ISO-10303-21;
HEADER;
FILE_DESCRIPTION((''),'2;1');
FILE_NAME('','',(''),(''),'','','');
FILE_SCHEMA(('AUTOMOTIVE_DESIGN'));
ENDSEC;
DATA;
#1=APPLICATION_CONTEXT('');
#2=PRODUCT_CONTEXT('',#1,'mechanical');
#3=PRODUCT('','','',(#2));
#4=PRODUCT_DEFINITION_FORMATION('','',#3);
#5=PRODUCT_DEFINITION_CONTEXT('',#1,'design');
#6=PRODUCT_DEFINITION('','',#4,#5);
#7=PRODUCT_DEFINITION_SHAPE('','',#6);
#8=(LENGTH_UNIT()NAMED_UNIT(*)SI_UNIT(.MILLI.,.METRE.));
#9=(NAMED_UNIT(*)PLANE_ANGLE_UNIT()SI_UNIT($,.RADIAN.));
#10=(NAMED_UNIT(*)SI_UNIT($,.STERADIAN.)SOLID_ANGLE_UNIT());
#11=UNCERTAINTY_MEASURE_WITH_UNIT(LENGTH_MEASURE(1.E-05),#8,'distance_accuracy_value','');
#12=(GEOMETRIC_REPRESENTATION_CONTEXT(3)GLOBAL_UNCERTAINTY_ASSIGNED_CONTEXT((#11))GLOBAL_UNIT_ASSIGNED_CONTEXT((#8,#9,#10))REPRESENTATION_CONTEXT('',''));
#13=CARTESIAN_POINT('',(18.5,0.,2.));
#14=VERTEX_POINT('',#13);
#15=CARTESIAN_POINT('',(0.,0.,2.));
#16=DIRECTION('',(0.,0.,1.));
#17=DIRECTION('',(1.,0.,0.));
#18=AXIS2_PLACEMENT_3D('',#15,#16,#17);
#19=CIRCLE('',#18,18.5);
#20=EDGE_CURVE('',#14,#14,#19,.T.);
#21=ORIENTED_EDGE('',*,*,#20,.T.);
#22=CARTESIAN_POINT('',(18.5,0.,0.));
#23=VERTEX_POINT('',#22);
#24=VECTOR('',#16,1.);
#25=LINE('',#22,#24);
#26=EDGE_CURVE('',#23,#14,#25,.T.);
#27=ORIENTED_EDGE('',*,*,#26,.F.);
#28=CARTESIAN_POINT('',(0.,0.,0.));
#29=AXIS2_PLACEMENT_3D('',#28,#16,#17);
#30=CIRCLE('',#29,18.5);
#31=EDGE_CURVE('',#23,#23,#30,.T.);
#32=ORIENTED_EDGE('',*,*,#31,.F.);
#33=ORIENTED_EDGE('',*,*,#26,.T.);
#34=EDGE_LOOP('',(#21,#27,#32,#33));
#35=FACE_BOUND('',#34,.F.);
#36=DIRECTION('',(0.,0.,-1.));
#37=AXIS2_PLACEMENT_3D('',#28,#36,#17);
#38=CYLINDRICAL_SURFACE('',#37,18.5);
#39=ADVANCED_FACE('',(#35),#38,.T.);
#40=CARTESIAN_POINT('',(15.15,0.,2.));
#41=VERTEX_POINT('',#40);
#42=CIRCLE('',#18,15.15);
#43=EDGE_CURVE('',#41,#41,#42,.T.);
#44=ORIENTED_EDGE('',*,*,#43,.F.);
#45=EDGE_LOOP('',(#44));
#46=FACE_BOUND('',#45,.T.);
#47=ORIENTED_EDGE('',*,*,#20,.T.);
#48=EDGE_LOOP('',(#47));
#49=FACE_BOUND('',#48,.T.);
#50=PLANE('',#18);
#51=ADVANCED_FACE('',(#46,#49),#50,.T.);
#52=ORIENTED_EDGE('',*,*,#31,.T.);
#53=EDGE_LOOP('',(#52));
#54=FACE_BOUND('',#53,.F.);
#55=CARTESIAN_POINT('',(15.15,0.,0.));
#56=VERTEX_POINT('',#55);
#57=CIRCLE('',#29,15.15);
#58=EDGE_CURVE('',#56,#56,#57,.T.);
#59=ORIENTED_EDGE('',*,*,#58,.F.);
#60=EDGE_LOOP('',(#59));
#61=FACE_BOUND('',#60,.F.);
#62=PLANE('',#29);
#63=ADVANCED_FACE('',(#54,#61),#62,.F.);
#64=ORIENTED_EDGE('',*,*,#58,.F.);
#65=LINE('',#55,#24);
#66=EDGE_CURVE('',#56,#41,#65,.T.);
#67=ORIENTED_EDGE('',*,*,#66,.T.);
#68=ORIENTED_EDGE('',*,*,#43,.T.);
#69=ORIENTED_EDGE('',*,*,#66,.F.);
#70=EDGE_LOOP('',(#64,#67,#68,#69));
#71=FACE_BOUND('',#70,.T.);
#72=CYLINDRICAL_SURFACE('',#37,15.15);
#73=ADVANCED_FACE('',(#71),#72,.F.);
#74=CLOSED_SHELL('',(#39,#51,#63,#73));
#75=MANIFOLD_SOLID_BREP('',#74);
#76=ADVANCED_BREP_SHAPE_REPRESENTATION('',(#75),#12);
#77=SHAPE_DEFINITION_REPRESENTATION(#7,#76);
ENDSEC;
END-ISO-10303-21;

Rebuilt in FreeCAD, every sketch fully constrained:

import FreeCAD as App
import Part
import Sketcher

V = App.Vector
Q = App.Units.Quantity

doc = App.newDocument("Part")
body = doc.addObject("PartDesign::Body", "Body")

# Sketch on XY plane
sketch1 = body.newObject("Sketcher::SketchObject", "Sketch")
sketch1.AttachmentSupport = (doc.getObject("XY_Plane"), [""])
sketch1.MapMode = "FlatFace"
sketch1.addGeometry(Part.Circle(V(0, 0, 0), V(0, 0, 1), 18.5), False)
sketch1.addGeometry(Part.Circle(V(0, 0, 0), V(0, 0, 1), 15.15), False)
sketch1.addConstraint(Sketcher.Constraint("Coincident", 0, 3, -1, 1))
sketch1.addConstraint(Sketcher.Constraint("Coincident", 1, 3, -1, 1))
sketch1.addConstraint(Sketcher.Constraint("Diameter", 0, Q("37 mm")))
sketch1.addConstraint(Sketcher.Constraint("Diameter", 1, Q("30.3 mm")))
pad1 = body.newObject("PartDesign::Pad", "Pad")
pad1.Profile = sketch1
pad1.Length = 2

doc.recompute()
